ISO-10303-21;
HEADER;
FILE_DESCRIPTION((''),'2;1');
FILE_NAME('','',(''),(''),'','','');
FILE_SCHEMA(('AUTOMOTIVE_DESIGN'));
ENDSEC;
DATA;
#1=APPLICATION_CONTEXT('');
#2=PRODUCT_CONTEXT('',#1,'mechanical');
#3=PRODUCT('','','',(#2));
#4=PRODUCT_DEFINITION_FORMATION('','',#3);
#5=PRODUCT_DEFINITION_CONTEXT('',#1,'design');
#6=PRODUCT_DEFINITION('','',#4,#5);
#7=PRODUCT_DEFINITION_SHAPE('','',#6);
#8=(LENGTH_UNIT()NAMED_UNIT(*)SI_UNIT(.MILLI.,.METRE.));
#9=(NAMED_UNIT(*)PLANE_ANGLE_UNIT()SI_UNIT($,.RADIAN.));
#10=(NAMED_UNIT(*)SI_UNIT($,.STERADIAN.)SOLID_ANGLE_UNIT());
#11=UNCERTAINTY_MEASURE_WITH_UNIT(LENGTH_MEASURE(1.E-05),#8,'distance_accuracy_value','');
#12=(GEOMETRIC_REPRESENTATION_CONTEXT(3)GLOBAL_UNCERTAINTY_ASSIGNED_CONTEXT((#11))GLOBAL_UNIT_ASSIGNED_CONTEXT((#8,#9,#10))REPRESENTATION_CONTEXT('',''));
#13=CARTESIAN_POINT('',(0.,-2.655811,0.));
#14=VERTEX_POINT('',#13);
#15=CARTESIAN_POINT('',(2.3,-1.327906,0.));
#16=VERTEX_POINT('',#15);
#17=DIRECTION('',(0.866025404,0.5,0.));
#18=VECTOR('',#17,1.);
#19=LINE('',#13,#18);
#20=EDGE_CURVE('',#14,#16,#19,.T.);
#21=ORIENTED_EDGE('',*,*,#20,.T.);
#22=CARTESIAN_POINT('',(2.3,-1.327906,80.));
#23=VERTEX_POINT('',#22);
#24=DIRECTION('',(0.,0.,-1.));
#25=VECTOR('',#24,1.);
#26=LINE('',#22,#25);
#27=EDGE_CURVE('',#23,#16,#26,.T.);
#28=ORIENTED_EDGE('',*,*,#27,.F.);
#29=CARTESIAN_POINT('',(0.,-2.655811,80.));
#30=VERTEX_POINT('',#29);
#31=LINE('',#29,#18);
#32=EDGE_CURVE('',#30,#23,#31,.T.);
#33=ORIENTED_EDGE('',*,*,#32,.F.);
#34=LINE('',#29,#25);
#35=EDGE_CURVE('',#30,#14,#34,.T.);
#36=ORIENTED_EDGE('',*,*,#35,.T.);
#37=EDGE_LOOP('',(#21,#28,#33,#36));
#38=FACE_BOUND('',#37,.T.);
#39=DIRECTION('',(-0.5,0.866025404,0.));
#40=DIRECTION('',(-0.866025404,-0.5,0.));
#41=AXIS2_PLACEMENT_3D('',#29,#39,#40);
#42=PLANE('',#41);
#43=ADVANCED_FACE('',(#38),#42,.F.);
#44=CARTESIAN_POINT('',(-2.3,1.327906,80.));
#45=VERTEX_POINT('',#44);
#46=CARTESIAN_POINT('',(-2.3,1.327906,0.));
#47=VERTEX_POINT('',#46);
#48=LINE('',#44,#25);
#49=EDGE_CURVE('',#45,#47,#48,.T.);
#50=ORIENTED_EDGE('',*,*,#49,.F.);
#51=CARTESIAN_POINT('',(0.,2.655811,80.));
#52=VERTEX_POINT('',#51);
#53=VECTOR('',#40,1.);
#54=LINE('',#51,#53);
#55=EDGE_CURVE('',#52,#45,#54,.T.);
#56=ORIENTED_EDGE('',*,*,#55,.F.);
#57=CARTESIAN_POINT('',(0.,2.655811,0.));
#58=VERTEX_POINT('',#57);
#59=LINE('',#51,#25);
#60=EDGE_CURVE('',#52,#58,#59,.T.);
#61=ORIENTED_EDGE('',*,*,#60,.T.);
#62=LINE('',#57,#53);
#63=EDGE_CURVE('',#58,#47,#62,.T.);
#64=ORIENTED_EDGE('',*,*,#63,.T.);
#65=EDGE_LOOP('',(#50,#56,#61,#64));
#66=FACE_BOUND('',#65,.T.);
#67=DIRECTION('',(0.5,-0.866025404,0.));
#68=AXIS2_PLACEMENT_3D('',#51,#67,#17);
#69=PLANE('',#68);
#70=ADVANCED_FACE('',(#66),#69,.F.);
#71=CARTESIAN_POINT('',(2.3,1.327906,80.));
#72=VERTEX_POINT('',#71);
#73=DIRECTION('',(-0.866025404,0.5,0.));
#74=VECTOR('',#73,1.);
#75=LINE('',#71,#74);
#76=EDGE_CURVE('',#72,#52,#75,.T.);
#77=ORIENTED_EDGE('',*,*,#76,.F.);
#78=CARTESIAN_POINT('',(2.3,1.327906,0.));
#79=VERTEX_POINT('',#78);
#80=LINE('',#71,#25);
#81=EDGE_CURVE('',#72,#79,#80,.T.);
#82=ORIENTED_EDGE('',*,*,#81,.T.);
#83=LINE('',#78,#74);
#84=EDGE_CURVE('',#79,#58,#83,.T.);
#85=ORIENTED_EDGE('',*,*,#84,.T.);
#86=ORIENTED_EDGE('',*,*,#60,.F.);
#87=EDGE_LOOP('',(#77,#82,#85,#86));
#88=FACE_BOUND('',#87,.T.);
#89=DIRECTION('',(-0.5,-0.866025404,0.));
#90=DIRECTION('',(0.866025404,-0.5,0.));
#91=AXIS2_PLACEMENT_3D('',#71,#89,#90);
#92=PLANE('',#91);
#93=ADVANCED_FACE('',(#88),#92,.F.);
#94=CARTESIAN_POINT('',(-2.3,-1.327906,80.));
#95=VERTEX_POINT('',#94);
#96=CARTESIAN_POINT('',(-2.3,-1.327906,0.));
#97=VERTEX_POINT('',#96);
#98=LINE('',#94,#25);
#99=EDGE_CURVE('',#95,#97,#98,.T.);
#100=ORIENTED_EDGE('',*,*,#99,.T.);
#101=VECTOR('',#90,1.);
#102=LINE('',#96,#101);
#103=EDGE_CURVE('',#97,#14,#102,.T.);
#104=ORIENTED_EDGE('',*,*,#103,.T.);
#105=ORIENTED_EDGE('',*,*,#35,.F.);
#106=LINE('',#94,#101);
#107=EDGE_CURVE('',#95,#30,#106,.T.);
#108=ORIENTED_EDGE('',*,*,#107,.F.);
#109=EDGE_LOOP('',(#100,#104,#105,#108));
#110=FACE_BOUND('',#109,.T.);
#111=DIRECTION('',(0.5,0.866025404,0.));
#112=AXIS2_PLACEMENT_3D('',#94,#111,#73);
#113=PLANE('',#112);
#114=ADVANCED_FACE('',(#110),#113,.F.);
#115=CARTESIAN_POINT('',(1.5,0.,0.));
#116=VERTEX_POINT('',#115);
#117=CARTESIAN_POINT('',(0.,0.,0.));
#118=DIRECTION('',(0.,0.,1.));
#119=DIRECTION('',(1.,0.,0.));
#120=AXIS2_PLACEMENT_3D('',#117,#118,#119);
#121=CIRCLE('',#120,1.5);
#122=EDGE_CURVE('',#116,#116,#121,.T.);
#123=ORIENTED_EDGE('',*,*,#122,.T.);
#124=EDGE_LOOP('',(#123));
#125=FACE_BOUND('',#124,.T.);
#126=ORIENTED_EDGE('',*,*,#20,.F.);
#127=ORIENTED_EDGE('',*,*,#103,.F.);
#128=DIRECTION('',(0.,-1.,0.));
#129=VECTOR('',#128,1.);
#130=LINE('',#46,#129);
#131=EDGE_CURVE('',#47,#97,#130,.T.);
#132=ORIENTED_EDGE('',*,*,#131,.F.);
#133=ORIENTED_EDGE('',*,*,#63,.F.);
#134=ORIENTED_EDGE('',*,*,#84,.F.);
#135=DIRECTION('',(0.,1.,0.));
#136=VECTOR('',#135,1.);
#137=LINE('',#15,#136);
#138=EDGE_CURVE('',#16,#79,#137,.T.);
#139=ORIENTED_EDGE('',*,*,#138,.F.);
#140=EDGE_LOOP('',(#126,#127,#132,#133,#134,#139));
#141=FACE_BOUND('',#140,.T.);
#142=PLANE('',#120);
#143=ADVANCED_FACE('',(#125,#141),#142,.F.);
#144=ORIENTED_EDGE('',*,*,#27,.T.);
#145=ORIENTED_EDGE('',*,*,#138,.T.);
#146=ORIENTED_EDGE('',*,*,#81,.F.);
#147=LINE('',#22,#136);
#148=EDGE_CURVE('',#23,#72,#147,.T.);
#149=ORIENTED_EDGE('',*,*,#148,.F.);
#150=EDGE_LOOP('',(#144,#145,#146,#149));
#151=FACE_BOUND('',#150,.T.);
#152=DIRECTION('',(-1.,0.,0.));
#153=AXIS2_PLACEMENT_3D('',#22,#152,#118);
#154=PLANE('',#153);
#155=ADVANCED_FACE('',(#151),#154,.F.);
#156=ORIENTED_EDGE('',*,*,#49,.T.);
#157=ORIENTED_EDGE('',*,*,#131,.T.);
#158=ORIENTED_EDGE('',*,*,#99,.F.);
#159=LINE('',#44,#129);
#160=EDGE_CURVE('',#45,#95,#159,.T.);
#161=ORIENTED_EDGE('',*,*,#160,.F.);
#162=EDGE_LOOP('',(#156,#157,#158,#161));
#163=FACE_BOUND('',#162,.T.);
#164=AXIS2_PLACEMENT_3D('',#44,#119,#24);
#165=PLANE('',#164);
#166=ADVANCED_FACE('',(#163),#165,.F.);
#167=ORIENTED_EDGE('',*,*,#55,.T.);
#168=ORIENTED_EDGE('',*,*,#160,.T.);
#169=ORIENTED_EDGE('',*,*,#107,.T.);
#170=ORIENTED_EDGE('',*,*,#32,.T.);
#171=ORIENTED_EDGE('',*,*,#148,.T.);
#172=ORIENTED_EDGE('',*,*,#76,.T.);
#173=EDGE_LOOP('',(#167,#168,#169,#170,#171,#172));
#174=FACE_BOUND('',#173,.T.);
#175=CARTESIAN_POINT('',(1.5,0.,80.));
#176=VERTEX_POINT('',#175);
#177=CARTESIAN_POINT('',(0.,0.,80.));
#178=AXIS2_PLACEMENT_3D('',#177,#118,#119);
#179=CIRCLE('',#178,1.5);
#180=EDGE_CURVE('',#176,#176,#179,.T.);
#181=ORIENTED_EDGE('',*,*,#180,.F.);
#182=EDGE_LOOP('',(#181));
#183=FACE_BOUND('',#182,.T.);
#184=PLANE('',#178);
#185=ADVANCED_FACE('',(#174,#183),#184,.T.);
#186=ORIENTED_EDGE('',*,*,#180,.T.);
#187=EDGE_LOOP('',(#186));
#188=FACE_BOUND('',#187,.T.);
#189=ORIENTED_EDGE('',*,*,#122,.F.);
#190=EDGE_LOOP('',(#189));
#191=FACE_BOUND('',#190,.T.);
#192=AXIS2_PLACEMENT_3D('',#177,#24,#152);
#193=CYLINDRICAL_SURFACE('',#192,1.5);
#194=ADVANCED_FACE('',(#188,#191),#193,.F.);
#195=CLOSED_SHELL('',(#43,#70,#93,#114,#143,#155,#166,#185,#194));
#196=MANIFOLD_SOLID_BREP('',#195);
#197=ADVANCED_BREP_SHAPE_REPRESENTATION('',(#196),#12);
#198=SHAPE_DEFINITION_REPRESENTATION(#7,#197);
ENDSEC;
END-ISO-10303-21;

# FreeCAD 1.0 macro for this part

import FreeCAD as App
import Part
import Sketcher
from FreeCAD import Vector
Q = App.Units.Quantity


def add_polygon(sketch, points):
    """Adds a closed chain of lines whose ends are joined by coincident constraints."""
    first, n = sketch.GeometryCount, len(points)
    for a, b in zip(points, points[1:] + points[:1]):
        sketch.addGeometry(Part.LineSegment(App.Vector(*a, 0), App.Vector(*b, 0)), False)
    for i in range(n):
        sketch.addConstraint(Sketcher.Constraint("Coincident", first + i, 2, first + (i + 1) % n, 1))

doc = App.newDocument("Part")
body = doc.addObject("PartDesign::Body", "Body")

# Sketch on XY plane
sketch1 = body.newObject("Sketcher::SketchObject", "Sketch")
sketch1.AttachmentSupport = (doc.getObject("XY_Plane"), [""])
sketch1.MapMode = "FlatFace"
add_polygon(sketch1, [(0, 2.7), (-2.3, 1.3), (-2.3, -1.3), (0, -2.7), (2.3, -1.3), (2.3, 1.3)])  # lines 0-5
sketch1.addGeometry(Part.Circle(Vector(0, 0, 0), Vector(0, 0, 1), 1.5), False)  # 6
sketch1.addConstraint([
    Sketcher.Constraint("Vertical", 1),
    Sketcher.Constraint("Vertical", 4),
    Sketcher.Constraint("Coincident", 6, 3, -1, 1),
    Sketcher.Constraint("Symmetric", 0, 2, 3, 2, -1, 1),
    Sketcher.Constraint("Symmetric", 2, 2, 5, 2, -1, 1),
    Sketcher.Constraint("PointOnObject", 2, 2, -2),
    Sketcher.Constraint("Parallel", 2, 5),
    Sketcher.Constraint("Horizontal", 1, 2, 3, 2),
    Sketcher.Constraint("Diameter", 6, 3.0),
    Sketcher.Constraint("Angle", 0, Q("-150 deg")),
    Sketcher.Constraint("DistanceX", 0, 2, -1, 1, 2.3),
    Sketcher.Constraint("DistanceY", 1, 2, 1, 1, 2.655811),
])
pad1 = body.newObject("PartDesign::Pad", "Pad")
pad1.Profile = sketch1
pad1.Length = 80

doc.recompute()
